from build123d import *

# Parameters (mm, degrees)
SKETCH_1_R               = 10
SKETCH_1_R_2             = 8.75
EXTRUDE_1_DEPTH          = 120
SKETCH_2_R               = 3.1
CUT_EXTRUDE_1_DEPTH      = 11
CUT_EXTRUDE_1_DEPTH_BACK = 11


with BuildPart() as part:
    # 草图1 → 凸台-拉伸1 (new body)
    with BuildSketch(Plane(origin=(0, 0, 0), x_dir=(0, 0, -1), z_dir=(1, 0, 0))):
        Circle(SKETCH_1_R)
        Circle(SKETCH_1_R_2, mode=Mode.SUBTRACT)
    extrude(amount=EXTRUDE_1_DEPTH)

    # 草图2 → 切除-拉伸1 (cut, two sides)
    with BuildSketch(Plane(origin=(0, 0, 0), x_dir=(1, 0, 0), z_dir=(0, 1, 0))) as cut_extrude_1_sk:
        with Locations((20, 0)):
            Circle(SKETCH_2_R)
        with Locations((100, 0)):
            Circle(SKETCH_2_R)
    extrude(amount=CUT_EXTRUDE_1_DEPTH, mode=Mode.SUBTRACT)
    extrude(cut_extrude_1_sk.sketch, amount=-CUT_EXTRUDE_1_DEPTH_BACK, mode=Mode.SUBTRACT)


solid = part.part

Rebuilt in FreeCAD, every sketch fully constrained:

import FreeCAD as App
import Part
import Sketcher

doc = App.newDocument("Part")
params = doc.addObject("Spreadsheet::Sheet", "Params")
for row, (alias, value) in enumerate([
    ("sketch1_diameter", "20 mm"),
    ("sketch1_diameter2", "17.5 mm"),
    ("pad1_length", "120 mm"),
    ("sketch2_diameter", "6.2 mm"),
], start=1):
    params.set(f"A{row}", alias)
    params.set(f"B{row}", "=" + value)
    params.setAlias(f"B{row}", alias)

body = doc.addObject("PartDesign::Body", "Body")

sketch1 = body.newObject("Sketcher::SketchObject", "Sketch")
sketch1.AttachmentSupport = (doc.getObject("YZ_Plane"), [""])
sketch1.MapMode = "FlatFace"
sketch1.addGeometry([
    Part.Circle(App.Vector(0, 0, 0), App.Vector(0, 0, 1), 10),
    Part.Circle(App.Vector(0, 0, 0), App.Vector(0, 0, 1), 8.75),
], False)
sketch1.addConstraint([
    Sketcher.Constraint("Coincident", 0, 3, -1, 1),
    Sketcher.Constraint("Coincident", 1, 3, -1, 1),
    Sketcher.Constraint("Diameter", 0, 20.0),
    Sketcher.Constraint("Diameter", 1, 17.5),
])
sketch1.setExpression("Constraints[2]", "Params.sketch1_diameter")
sketch1.setExpression("Constraints[3]", "Params.sketch1_diameter2")
pad1 = body.newObject("PartDesign::Pad", "Pad")
pad1.Profile = sketch1
pad1.setExpression("Length", "Params.pad1_length")

sketch2 = body.newObject("Sketcher::SketchObject", "Sketch001")
sketch2.AttachmentSupport = (doc.getObject("XZ_Plane"), [""])
sketch2.MapMode = "FlatFace"
sketch2.addGeometry([
    Part.Circle(App.Vector(20, 0, 0), App.Vector(0, 0, 1), 3.1),
    Part.Circle(App.Vector(100, 0, 0), App.Vector(0, 0, 1), 3.1),
], False)
sketch2.addConstraint([
    Sketcher.Constraint("Equal", 0, 1),
    Sketcher.Constraint("PointOnObject", 0, 3, -1),
    Sketcher.Constraint("PointOnObject", 1, 3, -1),
    Sketcher.Constraint("Diameter", 0, 6.2),
    Sketcher.Constraint("DistanceX", -1, 1, 0, 3, 20.0),
    Sketcher.Constraint("DistanceX", -1, 1, 1, 3, 100.0),
])
sketch2.setExpression("Constraints[3]", "Params.sketch2_diameter")
pocket1 = body.newObject("PartDesign::Pocket", "Pocket")
pocket1.Profile = sketch2
pocket1.Type = "ThroughAll"
pocket1.Midplane = True

doc.recompute()
